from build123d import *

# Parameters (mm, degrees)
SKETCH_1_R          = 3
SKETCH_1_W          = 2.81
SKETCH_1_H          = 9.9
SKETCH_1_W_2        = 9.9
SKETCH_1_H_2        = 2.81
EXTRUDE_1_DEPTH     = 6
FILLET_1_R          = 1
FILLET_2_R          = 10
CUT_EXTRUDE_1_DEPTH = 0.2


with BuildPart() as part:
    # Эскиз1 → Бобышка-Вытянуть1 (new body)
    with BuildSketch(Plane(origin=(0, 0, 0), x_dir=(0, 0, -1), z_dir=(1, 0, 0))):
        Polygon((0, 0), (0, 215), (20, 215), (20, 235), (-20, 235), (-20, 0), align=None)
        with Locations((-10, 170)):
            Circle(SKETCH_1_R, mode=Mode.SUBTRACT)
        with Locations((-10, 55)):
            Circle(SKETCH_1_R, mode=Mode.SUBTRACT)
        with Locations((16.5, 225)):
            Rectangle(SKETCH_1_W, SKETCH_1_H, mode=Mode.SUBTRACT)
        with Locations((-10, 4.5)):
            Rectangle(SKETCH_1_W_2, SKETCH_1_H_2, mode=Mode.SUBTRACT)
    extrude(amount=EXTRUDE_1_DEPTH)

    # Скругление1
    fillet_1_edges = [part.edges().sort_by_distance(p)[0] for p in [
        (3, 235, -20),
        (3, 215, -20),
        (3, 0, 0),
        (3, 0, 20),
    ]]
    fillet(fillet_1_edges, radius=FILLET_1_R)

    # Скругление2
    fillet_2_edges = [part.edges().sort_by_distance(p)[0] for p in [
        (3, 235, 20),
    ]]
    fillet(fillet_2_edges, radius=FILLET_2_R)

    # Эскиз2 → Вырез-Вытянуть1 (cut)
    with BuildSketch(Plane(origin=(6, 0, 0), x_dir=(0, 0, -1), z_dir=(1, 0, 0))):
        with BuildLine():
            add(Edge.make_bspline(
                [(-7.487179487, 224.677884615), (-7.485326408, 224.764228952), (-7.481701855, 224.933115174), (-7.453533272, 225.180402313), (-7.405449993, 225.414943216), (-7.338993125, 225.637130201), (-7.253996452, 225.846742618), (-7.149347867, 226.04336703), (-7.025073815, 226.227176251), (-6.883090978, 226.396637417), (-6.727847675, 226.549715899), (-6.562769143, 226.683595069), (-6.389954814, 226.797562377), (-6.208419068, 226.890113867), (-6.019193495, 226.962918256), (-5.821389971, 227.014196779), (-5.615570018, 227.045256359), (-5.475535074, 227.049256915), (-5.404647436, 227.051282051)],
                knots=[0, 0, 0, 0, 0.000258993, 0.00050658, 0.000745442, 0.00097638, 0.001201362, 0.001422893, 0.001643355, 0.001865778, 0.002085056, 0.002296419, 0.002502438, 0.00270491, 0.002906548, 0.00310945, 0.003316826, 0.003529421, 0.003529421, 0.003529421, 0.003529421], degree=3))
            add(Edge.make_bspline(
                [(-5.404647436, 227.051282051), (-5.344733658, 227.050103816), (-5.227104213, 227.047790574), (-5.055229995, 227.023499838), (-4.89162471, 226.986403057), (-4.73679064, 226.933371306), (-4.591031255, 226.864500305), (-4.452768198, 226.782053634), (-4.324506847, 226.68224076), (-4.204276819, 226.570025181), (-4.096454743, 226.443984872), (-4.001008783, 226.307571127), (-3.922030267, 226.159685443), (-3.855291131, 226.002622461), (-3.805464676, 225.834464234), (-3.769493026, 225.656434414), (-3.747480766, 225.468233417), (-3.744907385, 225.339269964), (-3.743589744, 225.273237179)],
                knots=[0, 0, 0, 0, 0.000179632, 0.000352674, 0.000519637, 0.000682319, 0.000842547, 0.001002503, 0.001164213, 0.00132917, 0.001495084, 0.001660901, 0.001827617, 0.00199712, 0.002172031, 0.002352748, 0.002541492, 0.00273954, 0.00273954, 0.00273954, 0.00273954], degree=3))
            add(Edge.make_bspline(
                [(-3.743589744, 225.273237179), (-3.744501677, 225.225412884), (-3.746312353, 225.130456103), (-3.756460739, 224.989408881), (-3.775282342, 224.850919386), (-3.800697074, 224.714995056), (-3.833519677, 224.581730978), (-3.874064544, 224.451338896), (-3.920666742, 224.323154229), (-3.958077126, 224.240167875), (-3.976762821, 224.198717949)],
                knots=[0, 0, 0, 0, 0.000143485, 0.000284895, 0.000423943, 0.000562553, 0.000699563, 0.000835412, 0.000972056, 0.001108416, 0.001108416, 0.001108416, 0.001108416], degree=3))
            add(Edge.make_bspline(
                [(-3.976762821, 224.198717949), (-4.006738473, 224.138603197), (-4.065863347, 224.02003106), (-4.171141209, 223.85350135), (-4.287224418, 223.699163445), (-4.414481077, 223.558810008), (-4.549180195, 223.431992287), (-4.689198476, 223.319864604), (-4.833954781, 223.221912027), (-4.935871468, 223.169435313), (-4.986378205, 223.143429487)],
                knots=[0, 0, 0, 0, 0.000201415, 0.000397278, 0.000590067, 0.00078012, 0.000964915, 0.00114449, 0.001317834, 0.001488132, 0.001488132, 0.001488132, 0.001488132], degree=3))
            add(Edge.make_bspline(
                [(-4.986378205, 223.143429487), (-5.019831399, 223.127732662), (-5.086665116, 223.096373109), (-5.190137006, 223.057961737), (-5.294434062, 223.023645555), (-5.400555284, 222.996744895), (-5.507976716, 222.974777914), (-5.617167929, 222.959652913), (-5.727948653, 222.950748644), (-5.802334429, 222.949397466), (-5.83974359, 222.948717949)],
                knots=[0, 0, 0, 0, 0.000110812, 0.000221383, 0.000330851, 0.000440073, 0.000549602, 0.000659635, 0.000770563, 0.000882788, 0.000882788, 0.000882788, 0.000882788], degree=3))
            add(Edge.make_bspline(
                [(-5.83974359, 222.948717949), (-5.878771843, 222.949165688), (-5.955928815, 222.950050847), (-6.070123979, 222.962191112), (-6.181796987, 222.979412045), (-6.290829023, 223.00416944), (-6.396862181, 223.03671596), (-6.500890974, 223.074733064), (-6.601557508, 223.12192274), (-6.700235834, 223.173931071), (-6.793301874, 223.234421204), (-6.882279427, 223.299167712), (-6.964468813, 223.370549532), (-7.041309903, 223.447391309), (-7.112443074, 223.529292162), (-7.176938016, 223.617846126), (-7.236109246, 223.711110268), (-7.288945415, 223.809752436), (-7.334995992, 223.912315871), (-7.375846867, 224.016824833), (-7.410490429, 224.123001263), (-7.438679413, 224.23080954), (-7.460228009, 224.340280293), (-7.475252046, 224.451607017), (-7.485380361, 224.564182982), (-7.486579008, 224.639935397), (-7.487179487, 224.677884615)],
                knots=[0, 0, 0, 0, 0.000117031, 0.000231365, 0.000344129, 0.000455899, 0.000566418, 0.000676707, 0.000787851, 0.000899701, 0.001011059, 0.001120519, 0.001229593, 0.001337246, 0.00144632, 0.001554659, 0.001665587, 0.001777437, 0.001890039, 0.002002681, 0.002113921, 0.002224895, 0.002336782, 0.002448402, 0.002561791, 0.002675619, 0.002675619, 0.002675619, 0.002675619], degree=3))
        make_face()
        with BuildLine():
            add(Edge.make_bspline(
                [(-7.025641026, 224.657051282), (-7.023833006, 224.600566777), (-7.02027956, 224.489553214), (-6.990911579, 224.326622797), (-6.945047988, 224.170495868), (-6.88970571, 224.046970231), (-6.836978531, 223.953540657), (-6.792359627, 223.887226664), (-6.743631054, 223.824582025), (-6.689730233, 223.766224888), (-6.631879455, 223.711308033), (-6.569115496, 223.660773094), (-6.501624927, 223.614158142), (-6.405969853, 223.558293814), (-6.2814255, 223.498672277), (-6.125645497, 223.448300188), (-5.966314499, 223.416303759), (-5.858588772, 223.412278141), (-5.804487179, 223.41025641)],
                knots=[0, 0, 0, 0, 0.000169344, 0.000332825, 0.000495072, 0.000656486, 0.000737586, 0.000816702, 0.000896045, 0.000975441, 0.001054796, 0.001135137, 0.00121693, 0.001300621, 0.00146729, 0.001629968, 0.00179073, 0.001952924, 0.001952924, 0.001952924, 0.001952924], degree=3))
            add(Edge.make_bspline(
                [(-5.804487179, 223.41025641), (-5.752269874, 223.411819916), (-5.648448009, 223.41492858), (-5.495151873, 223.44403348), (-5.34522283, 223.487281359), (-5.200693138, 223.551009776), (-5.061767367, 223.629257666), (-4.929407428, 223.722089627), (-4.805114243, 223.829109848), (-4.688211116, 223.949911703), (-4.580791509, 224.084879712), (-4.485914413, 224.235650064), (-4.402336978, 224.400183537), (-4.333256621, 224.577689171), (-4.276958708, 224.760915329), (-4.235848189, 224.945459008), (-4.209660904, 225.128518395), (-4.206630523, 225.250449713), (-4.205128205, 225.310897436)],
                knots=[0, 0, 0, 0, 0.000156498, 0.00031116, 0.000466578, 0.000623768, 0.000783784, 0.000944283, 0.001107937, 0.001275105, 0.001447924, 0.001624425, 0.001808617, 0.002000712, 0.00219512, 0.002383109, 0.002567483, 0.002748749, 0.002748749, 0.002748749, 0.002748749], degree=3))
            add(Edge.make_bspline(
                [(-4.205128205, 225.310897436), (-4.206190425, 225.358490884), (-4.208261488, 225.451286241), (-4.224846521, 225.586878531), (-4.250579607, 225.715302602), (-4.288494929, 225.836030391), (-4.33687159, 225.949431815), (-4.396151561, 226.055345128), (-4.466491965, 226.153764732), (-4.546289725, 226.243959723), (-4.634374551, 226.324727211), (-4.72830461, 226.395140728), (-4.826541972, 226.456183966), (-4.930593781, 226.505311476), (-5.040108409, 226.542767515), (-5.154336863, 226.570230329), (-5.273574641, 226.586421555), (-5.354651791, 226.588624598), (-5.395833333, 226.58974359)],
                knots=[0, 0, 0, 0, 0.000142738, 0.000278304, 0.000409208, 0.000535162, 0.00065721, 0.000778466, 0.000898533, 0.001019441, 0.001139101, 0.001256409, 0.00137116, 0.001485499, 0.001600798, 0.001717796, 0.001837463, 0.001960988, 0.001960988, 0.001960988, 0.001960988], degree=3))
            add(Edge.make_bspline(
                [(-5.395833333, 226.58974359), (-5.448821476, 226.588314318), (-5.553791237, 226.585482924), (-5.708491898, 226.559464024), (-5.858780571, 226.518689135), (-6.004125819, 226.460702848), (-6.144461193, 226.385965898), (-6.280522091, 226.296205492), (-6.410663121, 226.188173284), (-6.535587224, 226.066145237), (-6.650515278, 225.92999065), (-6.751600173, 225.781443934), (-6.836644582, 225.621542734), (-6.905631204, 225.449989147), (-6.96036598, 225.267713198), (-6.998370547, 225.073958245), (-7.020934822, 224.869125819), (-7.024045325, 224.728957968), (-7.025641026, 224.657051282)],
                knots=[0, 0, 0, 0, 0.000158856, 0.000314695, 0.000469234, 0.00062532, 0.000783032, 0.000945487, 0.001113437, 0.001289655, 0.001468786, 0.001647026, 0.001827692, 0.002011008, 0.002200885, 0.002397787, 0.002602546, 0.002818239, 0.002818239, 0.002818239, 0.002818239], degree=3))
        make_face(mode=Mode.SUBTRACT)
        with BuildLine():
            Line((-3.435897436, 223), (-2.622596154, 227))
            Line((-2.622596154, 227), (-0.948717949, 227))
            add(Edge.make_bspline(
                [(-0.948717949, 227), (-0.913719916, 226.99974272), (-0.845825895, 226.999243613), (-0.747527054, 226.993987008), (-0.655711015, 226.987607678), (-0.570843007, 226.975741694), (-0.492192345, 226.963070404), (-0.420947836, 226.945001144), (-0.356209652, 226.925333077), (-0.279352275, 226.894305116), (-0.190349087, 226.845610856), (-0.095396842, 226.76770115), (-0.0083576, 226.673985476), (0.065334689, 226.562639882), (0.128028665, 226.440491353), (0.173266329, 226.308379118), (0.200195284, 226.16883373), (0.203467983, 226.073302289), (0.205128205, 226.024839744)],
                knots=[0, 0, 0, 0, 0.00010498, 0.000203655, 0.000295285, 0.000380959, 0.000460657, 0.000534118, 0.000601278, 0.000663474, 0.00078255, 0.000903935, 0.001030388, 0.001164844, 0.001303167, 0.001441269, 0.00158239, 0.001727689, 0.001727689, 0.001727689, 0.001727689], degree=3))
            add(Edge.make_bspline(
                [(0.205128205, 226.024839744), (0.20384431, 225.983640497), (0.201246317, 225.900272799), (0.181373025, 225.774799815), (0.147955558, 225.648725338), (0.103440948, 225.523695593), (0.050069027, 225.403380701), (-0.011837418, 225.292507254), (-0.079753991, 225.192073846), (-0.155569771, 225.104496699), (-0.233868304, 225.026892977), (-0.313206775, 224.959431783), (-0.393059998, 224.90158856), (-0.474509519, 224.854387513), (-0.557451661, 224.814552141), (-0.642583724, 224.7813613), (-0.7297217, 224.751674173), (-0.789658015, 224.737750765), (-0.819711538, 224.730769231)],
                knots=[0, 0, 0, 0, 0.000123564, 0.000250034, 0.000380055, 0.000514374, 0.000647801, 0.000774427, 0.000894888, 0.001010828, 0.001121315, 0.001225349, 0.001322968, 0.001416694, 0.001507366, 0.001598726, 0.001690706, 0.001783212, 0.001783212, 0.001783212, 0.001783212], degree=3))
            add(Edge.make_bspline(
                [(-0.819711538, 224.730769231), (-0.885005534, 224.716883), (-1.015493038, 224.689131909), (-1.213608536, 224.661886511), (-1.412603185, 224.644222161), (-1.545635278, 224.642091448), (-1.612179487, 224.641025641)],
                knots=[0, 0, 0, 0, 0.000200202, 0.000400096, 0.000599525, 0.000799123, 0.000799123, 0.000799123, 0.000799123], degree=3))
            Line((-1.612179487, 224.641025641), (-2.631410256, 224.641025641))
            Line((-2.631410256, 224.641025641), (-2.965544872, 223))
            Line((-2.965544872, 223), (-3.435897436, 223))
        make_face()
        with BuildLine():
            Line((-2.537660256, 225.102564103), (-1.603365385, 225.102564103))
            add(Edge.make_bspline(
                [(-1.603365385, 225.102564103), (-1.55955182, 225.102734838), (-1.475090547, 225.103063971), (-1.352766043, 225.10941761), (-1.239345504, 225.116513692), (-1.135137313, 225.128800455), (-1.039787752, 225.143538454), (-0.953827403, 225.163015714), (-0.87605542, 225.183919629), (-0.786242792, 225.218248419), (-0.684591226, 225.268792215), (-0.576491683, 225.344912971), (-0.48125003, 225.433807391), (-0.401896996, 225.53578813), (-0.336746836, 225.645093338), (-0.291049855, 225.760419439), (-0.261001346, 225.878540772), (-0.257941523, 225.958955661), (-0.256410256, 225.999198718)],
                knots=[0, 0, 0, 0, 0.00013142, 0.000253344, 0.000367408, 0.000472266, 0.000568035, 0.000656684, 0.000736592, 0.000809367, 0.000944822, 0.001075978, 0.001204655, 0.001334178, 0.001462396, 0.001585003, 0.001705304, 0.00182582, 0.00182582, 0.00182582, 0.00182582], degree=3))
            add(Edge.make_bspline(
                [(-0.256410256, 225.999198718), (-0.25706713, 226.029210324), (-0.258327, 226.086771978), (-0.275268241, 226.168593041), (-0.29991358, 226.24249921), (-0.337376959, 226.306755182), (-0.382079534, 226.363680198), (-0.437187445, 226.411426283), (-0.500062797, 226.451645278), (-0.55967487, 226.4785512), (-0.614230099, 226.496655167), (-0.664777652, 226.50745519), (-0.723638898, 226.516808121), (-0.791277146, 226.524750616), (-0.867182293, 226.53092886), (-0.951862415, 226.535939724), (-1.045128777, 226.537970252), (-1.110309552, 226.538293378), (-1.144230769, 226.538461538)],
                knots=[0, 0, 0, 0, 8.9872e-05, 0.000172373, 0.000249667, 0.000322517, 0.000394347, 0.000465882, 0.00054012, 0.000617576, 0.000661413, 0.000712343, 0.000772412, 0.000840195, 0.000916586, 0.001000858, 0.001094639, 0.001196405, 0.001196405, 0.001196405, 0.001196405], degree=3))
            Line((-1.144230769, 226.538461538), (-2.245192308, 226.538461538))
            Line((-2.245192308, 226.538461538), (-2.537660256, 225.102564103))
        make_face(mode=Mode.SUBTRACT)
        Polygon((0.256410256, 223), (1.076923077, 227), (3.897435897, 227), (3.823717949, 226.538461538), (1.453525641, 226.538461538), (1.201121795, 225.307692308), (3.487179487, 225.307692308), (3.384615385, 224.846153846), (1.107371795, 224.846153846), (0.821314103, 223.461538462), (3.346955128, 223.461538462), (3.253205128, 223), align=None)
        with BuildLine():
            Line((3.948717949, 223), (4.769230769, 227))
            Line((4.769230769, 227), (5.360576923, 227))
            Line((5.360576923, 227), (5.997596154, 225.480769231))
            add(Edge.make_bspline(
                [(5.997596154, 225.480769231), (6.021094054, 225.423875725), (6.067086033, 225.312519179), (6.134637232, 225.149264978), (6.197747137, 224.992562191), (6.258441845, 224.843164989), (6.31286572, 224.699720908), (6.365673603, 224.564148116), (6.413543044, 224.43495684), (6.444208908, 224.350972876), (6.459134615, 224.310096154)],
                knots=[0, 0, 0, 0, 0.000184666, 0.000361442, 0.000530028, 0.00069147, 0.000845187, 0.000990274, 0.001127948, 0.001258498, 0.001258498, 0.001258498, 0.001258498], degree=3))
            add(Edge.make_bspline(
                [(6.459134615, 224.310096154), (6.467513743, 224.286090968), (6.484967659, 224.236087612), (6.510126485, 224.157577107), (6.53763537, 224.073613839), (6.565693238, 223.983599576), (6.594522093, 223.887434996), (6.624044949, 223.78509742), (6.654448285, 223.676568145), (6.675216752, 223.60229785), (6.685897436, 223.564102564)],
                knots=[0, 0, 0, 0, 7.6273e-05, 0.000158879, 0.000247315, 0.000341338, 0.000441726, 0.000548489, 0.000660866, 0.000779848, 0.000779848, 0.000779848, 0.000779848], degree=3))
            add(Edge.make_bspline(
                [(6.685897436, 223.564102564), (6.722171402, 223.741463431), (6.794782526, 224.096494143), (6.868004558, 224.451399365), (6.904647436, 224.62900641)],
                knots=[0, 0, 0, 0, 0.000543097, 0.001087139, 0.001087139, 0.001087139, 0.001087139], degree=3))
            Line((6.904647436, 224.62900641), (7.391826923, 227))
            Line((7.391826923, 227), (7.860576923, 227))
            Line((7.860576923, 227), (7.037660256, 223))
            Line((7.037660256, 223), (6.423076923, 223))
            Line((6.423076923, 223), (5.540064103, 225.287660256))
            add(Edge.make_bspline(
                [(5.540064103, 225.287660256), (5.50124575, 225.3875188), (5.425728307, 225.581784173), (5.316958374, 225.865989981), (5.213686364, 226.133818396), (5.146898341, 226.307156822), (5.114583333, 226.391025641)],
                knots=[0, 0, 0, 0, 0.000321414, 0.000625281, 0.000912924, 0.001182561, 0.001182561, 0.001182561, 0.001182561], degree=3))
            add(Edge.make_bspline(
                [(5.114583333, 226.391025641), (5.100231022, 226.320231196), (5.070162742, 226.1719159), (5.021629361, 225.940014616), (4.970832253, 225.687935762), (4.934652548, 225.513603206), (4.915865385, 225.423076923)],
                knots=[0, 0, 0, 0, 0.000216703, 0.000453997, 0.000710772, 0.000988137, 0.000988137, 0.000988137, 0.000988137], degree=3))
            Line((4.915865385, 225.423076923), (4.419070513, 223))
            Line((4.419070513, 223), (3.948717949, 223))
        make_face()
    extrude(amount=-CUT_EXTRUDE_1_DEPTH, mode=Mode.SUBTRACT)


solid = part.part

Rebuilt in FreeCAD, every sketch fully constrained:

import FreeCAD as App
import Part
import Sketcher
from FreeCAD import Vector
Q = App.Units.Quantity


def edges_at(feature, points):
    """Names of the edges that pass closest to the given points."""
    edges = feature.Shape.Edges
    near = lambda p: min(range(len(edges)), key=lambda i: edges[i].distToShape(Part.Vertex(*p))[0])
    return sorted({f"Edge{near(p) + 1}" for p in points})

doc = App.newDocument("Part")
body = doc.addObject("PartDesign::Body", "Body")

# Sketch on YZ plane
sketch1 = body.newObject("Sketcher::SketchObject", "Sketch")
sketch1.AttachmentSupport = (doc.getObject("YZ_Plane"), [""])
sketch1.MapMode = "FlatFace"
sketch1.addGeometry([
    Part.LineSegment(Vector(0, 0, 0), Vector(215, 0, 0)),  # 0
    Part.LineSegment(Vector(215, 0, 0), Vector(215, -20, 0)),  # 1
    Part.LineSegment(Vector(215, -20, 0), Vector(235, -20, 0)),  # 2
    Part.LineSegment(Vector(235, -20, 0), Vector(235, 20, 0)),  # 3
    Part.LineSegment(Vector(235, 20, 0), Vector(0, 20, 0)),  # 4
    Part.LineSegment(Vector(0, 20, 0), Vector(0, 0, 0)),  # 5
    Part.LineSegment(Vector(3.1, 5, 0), Vector(3.1, 14.9, 0)),  # 6
    Part.LineSegment(Vector(3.1, 14.9, 0), Vector(5.9, 14.9, 0)),  # 7
    Part.LineSegment(Vector(5.9, 14.9, 0), Vector(5.9, 5, 0)),  # 8
    Part.LineSegment(Vector(5.9, 5, 0), Vector(3.1, 5, 0)),  # 9
    Part.Circle(Vector(55, 10, 0), Vector(0, 0, 1), 3),  # 10
    Part.Circle(Vector(170, 10, 0), Vector(0, 0, 1), 3),  # 11
    Part.LineSegment(Vector(220.1, -17.9, 0), Vector(220.1, -15.1, 0)),  # 12
    Part.LineSegment(Vector(220.1, -15.1, 0), Vector(229.9, -15.1, 0)),  # 13
    Part.LineSegment(Vector(229.9, -15.1, 0), Vector(229.9, -17.9, 0)),  # 14
    Part.LineSegment(Vector(229.9, -17.9, 0), Vector(220.1, -17.9, 0)),  # 15
], False)
sketch1.addConstraint([
    Sketcher.Constraint("Coincident", 0, 2, 1, 1),
    Sketcher.Constraint("Coincident", 1, 2, 2, 1),
    Sketcher.Constraint("Coincident", 2, 2, 3, 1),
    Sketcher.Constraint("Coincident", 3, 2, 4, 1),
    Sketcher.Constraint("Coincident", 4, 2, 5, 1),
    Sketcher.Constraint("Coincident", 5, 2, 0, 1),
    Sketcher.Constraint("Coincident", 6, 2, 7, 1),
    Sketcher.Constraint("Coincident", 7, 2, 8, 1),
    Sketcher.Constraint("Coincident", 8, 2, 9, 1),
    Sketcher.Constraint("Coincident", 9, 2, 6, 1),
    Sketcher.Constraint("Coincident", 12, 2, 13, 1),
    Sketcher.Constraint("Coincident", 13, 2, 14, 1),
    Sketcher.Constraint("Coincident", 14, 2, 15, 1),
    Sketcher.Constraint("Coincident", 15, 2, 12, 1),
    Sketcher.Constraint("Horizontal", 0),
    Sketcher.Constraint("Vertical", 1),
    Sketcher.Constraint("Horizontal", 2),
    Sketcher.Constraint("Vertical", 3),
    Sketcher.Constraint("Horizontal", 4),
    Sketcher.Constraint("Vertical", 5),
    Sketcher.Constraint("Vertical", 6),
    Sketcher.Constraint("Horizontal", 7),
    Sketcher.Constraint("Vertical", 8),
    Sketcher.Constraint("Horizontal", 9),
    Sketcher.Constraint("Vertical", 12),
    Sketcher.Constraint("Horizontal", 13),
    Sketcher.Constraint("Vertical", 14),
    Sketcher.Constraint("Horizontal", 15),
    Sketcher.Constraint("Coincident", 5, 2, -1, 1),
    Sketcher.Constraint("Equal", 10, 11),
    Sketcher.Constraint("Horizontal", 10, 3, 11, 3),
    Sketcher.Constraint("Equal", 2, 1),
    Sketcher.Constraint("Equal", 1, 5),
    Sketcher.Constraint("Equal", 15, 6),
    Sketcher.Constraint("Equal", 9, 12),
    Sketcher.Constraint("Diameter", 10, Q("6 mm")),
    Sketcher.Constraint("DistanceX", 0, 1, 0, 2, Q("215 mm")),
    Sketcher.Constraint("DistanceX", 2, 1, 2, 2, Q("20 mm")),
    Sketcher.Constraint("DistanceX", 13, 1, 13, 2, Q("9.9 mm")),
    Sketcher.Constraint("DistanceX", -1, 1, 10, 3, Q("55 mm")),
    Sketcher.Constraint("DistanceY", -1, 1, 10, 3, Q("10 mm")),
    Sketcher.Constraint("DistanceX", -1, 1, 11, 3, Q("170 mm")),
    Sketcher.Constraint("DistanceX", 7, 1, 7, 2, Q("2.81 mm")),
    Sketcher.Constraint("DistanceY", -1, 1, 6, 2, Q("14.95 mm")),
    Sketcher.Constraint("DistanceX", -1, 1, 12, 2, Q("220.05 mm")),
    Sketcher.Constraint("DistanceX", -1, 1, 6, 2, Q("3.095 mm")),
    Sketcher.Constraint("DistanceY", 12, 2, -1, 1, Q("15.095 mm")),
])
pad1 = body.newObject("PartDesign::Pad", "Pad")
pad1.Profile = sketch1
pad1.Length = 6
doc.recompute()

fillet = body.newObject("PartDesign::Fillet", "Fillet")
fillet.Base = (pad1, edges_at(pad1, [
    (3, 235, -20),
    (3, 215, -20),
    (3, 0, 0),
    (3, 0, 20),
]))
fillet.Radius = 1
doc.recompute()

fillet2 = body.newObject("PartDesign::Fillet", "Fillet001")
fillet2.Base = (fillet, edges_at(fillet, [(3, 235, 20)]))
fillet2.Radius = 10

# Sketch on YZ plane
sketch2 = body.newObject("Sketcher::SketchObject", "Sketch001")
sketch2.AttachmentSupport = (doc.getObject("YZ_Plane"), [""])
sketch2.MapMode = "FlatFace"
sketch2.AttachmentOffset = App.Placement(Vector(0, 0, 6), App.Rotation())
sketch2.addGeometry([
    Part.BSplineCurve([Vector(224.677885, 7.487179, 0), Vector(224.764229, 7.485326, 0), Vector(224.933115, 7.481702, 0), Vector(225.180402, 7.453533, 0), Vector(225.414943, 7.40545, 0), Vector(225.63713, 7.338993, 0), Vector(225.846743, 7.253996, 0), Vector(226.043367, 7.149348, 0), Vector(226.227176, 7.025074, 0), Vector(226.396637, 6.883091, 0), Vector(226.549716, 6.727848, 0), Vector(226.683595, 6.562769, 0), Vector(226.797562, 6.389955, 0), Vector(226.890114, 6.208419, 0), Vector(226.962918, 6.019193, 0), Vector(227.014197, 5.82139, 0), Vector(227.045256, 5.61557, 0), Vector(227.049257, 5.475535, 0), Vector(227.051282, 5.404647, 0)], [4, 1, 1, 1, 1, 1, 1, 1, 1, 1, 1, 1, 1, 1, 1, 1, 4], [0, 0.000258993, 0.00050658, 0.000745442, 0.00097638, 0.001201362, 0.001422893, 0.001643355, 0.001865778, 0.002085056, 0.002296419, 0.002502438, 0.00270491, 0.002906548, 0.00310945, 0.003316826, 0.003529421], False, 3, [1, 1, 1, 1, 1, 1, 1, 1, 1, 1, 1, 1, 1, 1, 1, 1, 1, 1, 1], False),  # 0
    Part.BSplineCurve([Vector(222.948718, 5.839744, 0), Vector(222.949166, 5.878772, 0), Vector(222.950051, 5.955929, 0), Vector(222.962191, 6.070124, 0), Vector(222.979412, 6.181797, 0), Vector(223.004169, 6.290829, 0), Vector(223.036716, 6.396862, 0), Vector(223.074733, 6.500891, 0), Vector(223.121923, 6.601558, 0), Vector(223.173931, 6.700236, 0), Vector(223.234421, 6.793302, 0), Vector(223.299168, 6.882279, 0), Vector(223.37055, 6.964469, 0), Vector(223.447391, 7.04131, 0), Vector(223.529292, 7.112443, 0), Vector(223.617846, 7.176938, 0), Vector(223.71111, 7.236109, 0), Vector(223.809752, 7.288945, 0), Vector(223.912316, 7.334996, 0), Vector(224.016825, 7.375847, 0), Vector(224.123001, 7.41049, 0), Vector(224.23081, 7.438679, 0), Vector(224.34028, 7.460228, 0), Vector(224.451607, 7.475252, 0), Vector(224.564183, 7.48538, 0), Vector(224.639935, 7.486579, 0), Vector(224.677885, 7.487179, 0)], [4, 1, 1, 1, 1, 1, 1, 1, 1, 1, 1, 1, 1, 1, 1, 1, 1, 1, 1, 1, 1, 1, 1, 1, 4], [0, 0.000117031, 0.000231365, 0.000344129, 0.000455899, 0.000566418, 0.000676707, 0.000787851, 0.000899701, 0.001011059, 0.001120519, 0.001229593, 0.001337246, 0.00144632, 0.001554659, 0.001665587, 0.001777437, 0.001890039, 0.002002681, 0.002113921, 0.002224895, 0.002336782, 0.002448402, 0.002561791, 0.002675619], False, 3, [1, 1, 1, 1, 1, 1, 1, 1, 1, 1, 1, 1, 1, 1, 1, 1, 1, 1, 1, 1, 1, 1, 1, 1, 1, 1, 1], False),  # 1
    Part.BSplineCurve([Vector(223.143429, 4.986378, 0), Vector(223.127733, 5.019831, 0), Vector(223.096373, 5.086665, 0), Vector(223.057962, 5.190137, 0), Vector(223.023646, 5.294434, 0), Vector(222.996745, 5.400555, 0), Vector(222.974778, 5.507977, 0), Vector(222.959653, 5.617168, 0), Vector(222.950749, 5.727949, 0), Vector(222.949397, 5.802334, 0), Vector(222.948718, 5.839744, 0)], [4, 1, 1, 1, 1, 1, 1, 1, 4], [0, 0.000110812, 0.000221383, 0.000330851, 0.000440073, 0.000549602, 0.000659635, 0.000770563, 0.000882788], False, 3, [1, 1, 1, 1, 1, 1, 1, 1, 1, 1, 1], False),  # 2
    Part.BSplineCurve([Vector(224.198718, 3.976763, 0), Vector(224.138603, 4.006738, 0), Vector(224.020031, 4.065863, 0), Vector(223.853501, 4.171141, 0), Vector(223.699163, 4.287224, 0), Vector(223.55881, 4.414481, 0), Vector(223.431992, 4.54918, 0), Vector(223.319865, 4.689198, 0), Vector(223.221912, 4.833955, 0), Vector(223.169435, 4.935871, 0), Vector(223.143429, 4.986378, 0)], [4, 1, 1, 1, 1, 1, 1, 1, 4], [0, 0.000201415, 0.000397278, 0.000590067, 0.00078012, 0.000964915, 0.00114449, 0.001317834, 0.001488132], False, 3, [1, 1, 1, 1, 1, 1, 1, 1, 1, 1, 1], False),  # 3
    Part.BSplineCurve([Vector(225.273237, 3.74359, 0), Vector(225.225413, 3.744502, 0), Vector(225.130456, 3.746312, 0), Vector(224.989409, 3.756461, 0), Vector(224.850919, 3.775282, 0), Vector(224.714995, 3.800697, 0), Vector(224.581731, 3.83352, 0), Vector(224.451339, 3.874065, 0), Vector(224.323154, 3.920667, 0), Vector(224.240168, 3.958077, 0), Vector(224.198718, 3.976763, 0)], [4, 1, 1, 1, 1, 1, 1, 1, 4], [0, 0.000143485, 0.000284895, 0.000423943, 0.000562553, 0.000699563, 0.000835412, 0.000972056, 0.001108416], False, 3, [1, 1, 1, 1, 1, 1, 1, 1, 1, 1, 1], False),  # 4
    Part.BSplineCurve([Vector(227.051282, 5.404647, 0), Vector(227.050104, 5.344734, 0), Vector(227.047791, 5.227104, 0), Vector(227.0235, 5.05523, 0), Vector(226.986403, 4.891625, 0), Vector(226.933371, 4.736791, 0), Vector(226.8645, 4.591031, 0), Vector(226.782054, 4.452768, 0), Vector(226.682241, 4.324507, 0), Vector(226.570025, 4.204277, 0), Vector(226.443985, 4.096455, 0), Vector(226.307571, 4.001009, 0), Vector(226.159685, 3.92203, 0), Vector(226.002622, 3.855291, 0), Vector(225.834464, 3.805465, 0), Vector(225.656434, 3.769493, 0), Vector(225.468233, 3.747481, 0), Vector(225.33927, 3.744907, 0), Vector(225.273237, 3.74359, 0)], [4, 1, 1, 1, 1, 1, 1, 1, 1, 1, 1, 1, 1, 1, 1, 1, 4], [0, 0.000179632, 0.000352674, 0.000519637, 0.000682319, 0.000842547, 0.001002503, 0.001164213, 0.00132917, 0.001495084, 0.001660901, 0.001827617, 0.00199712, 0.002172031, 0.002352748, 0.002541492, 0.00273954], False, 3, [1, 1, 1, 1, 1, 1, 1, 1, 1, 1, 1, 1, 1, 1, 1, 1, 1, 1, 1], False),  # 5
    Part.BSplineCurve([Vector(226.589744, 5.395833, 0), Vector(226.588314, 5.448821, 0), Vector(226.585483, 5.553791, 0), Vector(226.559464, 5.708492, 0), Vector(226.518689, 5.858781, 0), Vector(226.460703, 6.004126, 0), Vector(226.385966, 6.144461, 0), Vector(226.296205, 6.280522, 0), Vector(226.188173, 6.410663, 0), Vector(226.066145, 6.535587, 0), Vector(225.929991, 6.650515, 0), Vector(225.781444, 6.7516, 0), Vector(225.621543, 6.836645, 0), Vector(225.449989, 6.905631, 0), Vector(225.267713, 6.960366, 0), Vector(225.073958, 6.998371, 0), Vector(224.869126, 7.020935, 0), Vector(224.728958, 7.024045, 0), Vector(224.657051, 7.025641, 0)], [4, 1, 1, 1, 1, 1, 1, 1, 1, 1, 1, 1, 1, 1, 1, 1, 4], [0, 0.000158856, 0.000314695, 0.000469234, 0.00062532, 0.000783032, 0.000945487, 0.001113437, 0.001289655, 0.001468786, 0.001647026, 0.001827692, 0.002011008, 0.002200885, 0.002397787, 0.002602546, 0.002818239], False, 3, [1, 1, 1, 1, 1, 1, 1, 1, 1, 1, 1, 1, 1, 1, 1, 1, 1, 1, 1], False),  # 6
    Part.BSplineCurve([Vector(225.310897, 4.205128, 0), Vector(225.358491, 4.20619, 0), Vector(225.451286, 4.208261, 0), Vector(225.586879, 4.224847, 0), Vector(225.715303, 4.25058, 0), Vector(225.83603, 4.288495, 0), Vector(225.949432, 4.336872, 0), Vector(226.055345, 4.396152, 0), Vector(226.153765, 4.466492, 0), Vector(226.24396, 4.54629, 0), Vector(226.324727, 4.634375, 0), Vector(226.395141, 4.728305, 0), Vector(226.456184, 4.826542, 0), Vector(226.505311, 4.930594, 0), Vector(226.542768, 5.040108, 0), Vector(226.57023, 5.154337, 0), Vector(226.586422, 5.273575, 0), Vector(226.588625, 5.354652, 0), Vector(226.589744, 5.395833, 0)], [4, 1, 1, 1, 1, 1, 1, 1, 1, 1, 1, 1, 1, 1, 1, 1, 4], [0, 0.000142738, 0.000278304, 0.000409208, 0.000535162, 0.00065721, 0.000778466, 0.000898533, 0.001019441, 0.001139101, 0.001256409, 0.00137116, 0.001485499, 0.001600798, 0.001717796, 0.001837463, 0.001960988], False, 3, [1, 1, 1, 1, 1, 1, 1, 1, 1, 1, 1, 1, 1, 1, 1, 1, 1, 1, 1], False),  # 7
    Part.BSplineCurve([Vector(223.410256, 5.804487, 0), Vector(223.41182, 5.75227, 0), Vector(223.414929, 5.648448, 0), Vector(223.444033, 5.495152, 0), Vector(223.487281, 5.345223, 0), Vector(223.55101, 5.200693, 0), Vector(223.629258, 5.061767, 0), Vector(223.72209, 4.929407, 0), Vector(223.82911, 4.805114, 0), Vector(223.949912, 4.688211, 0), Vector(224.08488, 4.580792, 0), Vector(224.23565, 4.485914, 0), Vector(224.400184, 4.402337, 0), Vector(224.577689, 4.333257, 0), Vector(224.760915, 4.276959, 0), Vector(224.945459, 4.235848, 0), Vector(225.128518, 4.209661, 0), Vector(225.25045, 4.206631, 0), Vector(225.310897, 4.205128, 0)], [4, 1, 1, 1, 1, 1, 1, 1, 1, 1, 1, 1, 1, 1, 1, 1, 4], [0, 0.000156498, 0.00031116, 0.000466578, 0.000623768, 0.000783784, 0.000944283, 0.001107937, 0.001275105, 0.001447924, 0.001624425, 0.001808617, 0.002000712, 0.00219512, 0.002383109, 0.002567483, 0.002748749], False, 3, [1, 1, 1, 1, 1, 1, 1, 1, 1, 1, 1, 1, 1, 1, 1, 1, 1, 1, 1], False),  # 8
    Part.BSplineCurve([Vector(224.657051, 7.025641, 0), Vector(224.600567, 7.023833, 0), Vector(224.489553, 7.02028, 0), Vector(224.326623, 6.990912, 0), Vector(224.170496, 6.945048, 0), Vector(224.04697, 6.889706, 0), Vector(223.953541, 6.836979, 0), Vector(223.887227, 6.79236, 0), Vector(223.824582, 6.743631, 0), Vector(223.766225, 6.68973, 0), Vector(223.711308, 6.631879, 0), Vector(223.660773, 6.569115, 0), Vector(223.614158, 6.501625, 0), Vector(223.558294, 6.40597, 0), Vector(223.498672, 6.281426, 0), Vector(223.4483, 6.125645, 0), Vector(223.416304, 5.966314, 0), Vector(223.412278, 5.858589, 0), Vector(223.410256, 5.804487, 0)], [4, 1, 1, 1, 1, 1, 1, 1, 1, 1, 1, 1, 1, 1, 1, 1, 4], [0, 0.000169344, 0.000332825, 0.000495072, 0.000656486, 0.000737586, 0.000816702, 0.000896045, 0.000975441, 0.001054796, 0.001135137, 0.00121693, 0.001300621, 0.00146729, 0.001629968, 0.00179073, 0.001952924], False, 3, [1, 1, 1, 1, 1, 1, 1, 1, 1, 1, 1, 1, 1, 1, 1, 1, 1, 1, 1], False),  # 9
    Part.LineSegment(Vector(227, 2.622596, 0), Vector(223, 3.435897, 0)),  # 10
    Part.LineSegment(Vector(223, 3.435897, 0), Vector(223, 2.965545, 0)),  # 11
    Part.LineSegment(Vector(223, 2.965545, 0), Vector(224.641026, 2.63141, 0)),  # 12
    Part.LineSegment(Vector(224.641026, 2.63141, 0), Vector(224.641026, 1.612179, 0)),  # 13
    Part.BSplineCurve([Vector(224.730769, 0.819712, 0), Vector(224.716883, 0.885006, 0), Vector(224.689132, 1.015493, 0), Vector(224.661887, 1.213609, 0), Vector(224.644222, 1.412603, 0), Vector(224.642091, 1.545635, 0), Vector(224.641026, 1.612179, 0)], [4, 1, 1, 1, 4], [0, 0.000200202, 0.000400096, 0.000599525, 0.000799123], False, 3, [1, 1, 1, 1, 1, 1, 1], False),  # 14
    Part.BSplineCurve([Vector(226.02484, -0.205128, 0), Vector(225.98364, -0.203844, 0), Vector(225.900273, -0.201246, 0), Vector(225.7748, -0.181373, 0), Vector(225.648725, -0.147956, 0), Vector(225.523696, -0.103441, 0), Vector(225.403381, -0.050069, 0), Vector(225.292507, 0.011837, 0), Vector(225.192074, 0.079754, 0), Vector(225.104497, 0.15557, 0), Vector(225.026893, 0.233868, 0), Vector(224.959432, 0.313207, 0), Vector(224.901589, 0.39306, 0), Vector(224.854388, 0.47451, 0), Vector(224.814552, 0.557452, 0), Vector(224.781361, 0.642584, 0), Vector(224.751674, 0.729722, 0), Vector(224.737751, 0.789658, 0), Vector(224.730769, 0.819712, 0)], [4, 1, 1, 1, 1, 1, 1, 1, 1, 1, 1, 1, 1, 1, 1, 1, 4], [0, 0.000123564, 0.000250034, 0.000380055, 0.000514374, 0.000647801, 0.000774427, 0.000894888, 0.001010828, 0.001121315, 0.001225349, 0.001322968, 0.001416694, 0.001507366, 0.001598726, 0.001690706, 0.001783212], False, 3, [1, 1, 1, 1, 1, 1, 1, 1, 1, 1, 1, 1, 1, 1, 1, 1, 1, 1, 1], False),  # 15
    Part.BSplineCurve([Vector(227, 0.948718, 0), Vector(226.999743, 0.91372, 0), Vector(226.999244, 0.845826, 0), Vector(226.993987, 0.747527, 0), Vector(226.987608, 0.655711, 0), Vector(226.975742, 0.570843, 0), Vector(226.96307, 0.492192, 0), Vector(226.945001, 0.420948, 0), Vector(226.925333, 0.35621, 0), Vector(226.894305, 0.279352, 0), Vector(226.845611, 0.190349, 0), Vector(226.767701, 0.095397, 0), Vector(226.673985, 0.008358, 0), Vector(226.56264, -0.065335, 0), Vector(226.440491, -0.128029, 0), Vector(226.308379, -0.173266, 0), Vector(226.168834, -0.200195, 0), Vector(226.073302, -0.203468, 0), Vector(226.02484, -0.205128, 0)], [4, 1, 1, 1, 1, 1, 1, 1, 1, 1, 1, 1, 1, 1, 1, 1, 4], [0, 0.00010498, 0.000203655, 0.000295285, 0.000380959, 0.000460657, 0.000534118, 0.000601278, 0.000663474, 0.00078255, 0.000903935, 0.001030388, 0.001164844, 0.001303167, 0.001441269, 0.00158239, 0.001727689], False, 3, [1, 1, 1, 1, 1, 1, 1, 1, 1, 1, 1, 1, 1, 1, 1, 1, 1, 1, 1], False),  # 16
    Part.LineSegment(Vector(227, 0.948718, 0), Vector(227, 2.622596, 0)),  # 17
    Part.LineSegment(Vector(225.102564, 2.53766, 0), Vector(226.538462, 2.245192, 0)),  # 18
    Part.LineSegment(Vector(226.538462, 2.245192, 0), Vector(226.538462, 1.144231, 0)),  # 19
    Part.BSplineCurve([Vector(225.999199, 0.25641, 0), Vector(226.02921, 0.257067, 0), Vector(226.086772, 0.258327, 0), Vector(226.168593, 0.275268, 0), Vector(226.242499, 0.299914, 0), Vector(226.306755, 0.337377, 0), Vector(226.36368, 0.38208, 0), Vector(226.411426, 0.437187, 0), Vector(226.451645, 0.500063, 0), Vector(226.478551, 0.559675, 0), Vector(226.496655, 0.61423, 0), Vector(226.507455, 0.664778, 0), Vector(226.516808, 0.723639, 0), Vector(226.524751, 0.791277, 0), Vector(226.530929, 0.867182, 0), Vector(226.53594, 0.951862, 0), Vector(226.53797, 1.045129, 0), Vector(226.538293, 1.11031, 0), Vector(226.538462, 1.144231, 0)], [4, 1, 1, 1, 1, 1, 1, 1, 1, 1, 1, 1, 1, 1, 1, 1, 4], [0, 0.000089872, 0.000172373, 0.000249667, 0.000322517, 0.000394347, 0.000465882, 0.00054012, 0.000617576, 0.000661413, 0.000712343, 0.000772412, 0.000840195, 0.000916586, 0.001000858, 0.001094639, 0.001196405], False, 3, [1, 1, 1, 1, 1, 1, 1, 1, 1, 1, 1, 1, 1, 1, 1, 1, 1, 1, 1], False),  # 20
    Part.BSplineCurve([Vector(225.102564, 1.603365, 0), Vector(225.102735, 1.559552, 0), Vector(225.103064, 1.475091, 0), Vector(225.109418, 1.352766, 0), Vector(225.116514, 1.239346, 0), Vector(225.1288, 1.135137, 0), Vector(225.143538, 1.039788, 0), Vector(225.163016, 0.953827, 0), Vector(225.18392, 0.876055, 0), Vector(225.218248, 0.786243, 0), Vector(225.268792, 0.684591, 0), Vector(225.344913, 0.576492, 0), Vector(225.433807, 0.48125, 0), Vector(225.535788, 0.401897, 0), Vector(225.645093, 0.336747, 0), Vector(225.760419, 0.29105, 0), Vector(225.878541, 0.261001, 0), Vector(225.958956, 0.257942, 0), Vector(225.999199, 0.25641, 0)], [4, 1, 1, 1, 1, 1, 1, 1, 1, 1, 1, 1, 1, 1, 1, 1, 4], [0, 0.00013142, 0.000253344, 0.000367408, 0.000472266, 0.000568035, 0.000656684, 0.000736592, 0.000809367, 0.000944822, 0.001075978, 0.001204655, 0.001334178, 0.001462396, 0.001585003, 0.001705304, 0.00182582], False, 3, [1, 1, 1, 1, 1, 1, 1, 1, 1, 1, 1, 1, 1, 1, 1, 1, 1, 1, 1], False),  # 21
    Part.LineSegment(Vector(225.102564, 1.603365, 0), Vector(225.102564, 2.53766, 0)),  # 22
    Part.LineSegment(Vector(227, -1.076923, 0), Vector(223, -0.25641, 0)),  # 23
    Part.LineSegment(Vector(223, -0.25641, 0), Vector(223, -3.253205, 0)),  # 24
    Part.LineSegment(Vector(223, -3.253205, 0), Vector(223.461538, -3.346955, 0)),  # 25
    Part.LineSegment(Vector(223.461538, -3.346955, 0), Vector(223.461538, -0.821314, 0)),  # 26
    Part.LineSegment(Vector(223.461538, -0.821314, 0), Vector(224.846154, -1.107372, 0)),  # 27
    Part.LineSegment(Vector(224.846154, -1.107372, 0), Vector(224.846154, -3.384615, 0)),  # 28
    Part.LineSegment(Vector(224.846154, -3.384615, 0), Vector(225.307692, -3.487179, 0)),  # 29
    Part.LineSegment(Vector(225.307692, -3.487179, 0), Vector(225.307692, -1.201122, 0)),  # 30
    Part.LineSegment(Vector(225.307692, -1.201122, 0), Vector(226.538462, -1.453526, 0)),  # 31
    Part.LineSegment(Vector(226.538462, -1.453526, 0), Vector(226.538462, -3.823718, 0)),  # 32
    Part.LineSegment(Vector(226.538462, -3.823718, 0), Vector(227, -3.897436, 0)),  # 33
    Part.LineSegment(Vector(227, -3.897436, 0), Vector(227, -1.076923, 0)),  # 34
    Part.LineSegment(Vector(227, -4.769231, 0), Vector(223, -3.948718, 0)),  # 35
    Part.LineSegment(Vector(223, -3.948718, 0), Vector(223, -4.419071, 0)),  # 36
    Part.LineSegment(Vector(223, -4.419071, 0), Vector(225.423077, -4.915865, 0)),  # 37
    Part.BSplineCurve([Vector(226.391026, -5.114583, 0), Vector(226.320231, -5.100231, 0), Vector(226.171916, -5.070163, 0), Vector(225.940015, -5.021629, 0), Vector(225.687936, -4.970832, 0), Vector(225.513603, -4.934653, 0), Vector(225.423077, -4.915865, 0)], [4, 1, 1, 1, 4], [0, 0.000216703, 0.000453997, 0.000710772, 0.000988137], False, 3, [1, 1, 1, 1, 1, 1, 1], False),  # 38
    Part.BSplineCurve([Vector(225.28766, -5.540064, 0), Vector(225.387519, -5.501246, 0), Vector(225.581784, -5.425728, 0), Vector(225.86599, -5.316958, 0), Vector(226.133818, -5.213686, 0), Vector(226.307157, -5.146898, 0), Vector(226.391026, -5.114583, 0)], [4, 1, 1, 1, 4], [0, 0.000321414, 0.000625281, 0.000912924, 0.001182561], False, 3, [1, 1, 1, 1, 1, 1, 1], False),  # 39
    Part.LineSegment(Vector(225.28766, -5.540064, 0), Vector(223, -6.423077, 0)),  # 40
    Part.LineSegment(Vector(223, -6.423077, 0), Vector(223, -7.03766, 0)),  # 41
    Part.LineSegment(Vector(223, -7.03766, 0), Vector(227, -7.860577, 0)),  # 42
    Part.LineSegment(Vector(227, -7.860577, 0), Vector(227, -7.391827, 0)),  # 43
    Part.LineSegment(Vector(227, -7.391827, 0), Vector(224.629006, -6.904647, 0)),  # 44
    Part.BSplineCurve([Vector(223.564103, -6.685897, 0), Vector(223.741463, -6.722171, 0), Vector(224.096494, -6.794783, 0), Vector(224.451399, -6.868005, 0), Vector(224.629006, -6.904647, 0)], [4, 1, 4], [0, 0.000543097, 0.001087139], False, 3, [1, 1, 1, 1, 1], False),  # 45
    Part.BSplineCurve([Vector(224.310096, -6.459135, 0), Vector(224.286091, -6.467514, 0), Vector(224.236088, -6.484968, 0), Vector(224.157577, -6.510126, 0), Vector(224.073614, -6.537635, 0), Vector(223.9836, -6.565693, 0), Vector(223.887435, -6.594522, 0), Vector(223.785097, -6.624045, 0), Vector(223.676568, -6.654448, 0), Vector(223.602298, -6.675217, 0), Vector(223.564103, -6.685897, 0)], [4, 1, 1, 1, 1, 1, 1, 1, 4], [0, 0.000076273, 0.000158879, 0.000247315, 0.000341338, 0.000441726, 0.000548489, 0.000660866, 0.000779848], False, 3, [1, 1, 1, 1, 1, 1, 1, 1, 1, 1, 1], False),  # 46
    Part.BSplineCurve([Vector(225.480769, -5.997596, 0), Vector(225.423876, -6.021094, 0), Vector(225.312519, -6.067086, 0), Vector(225.149265, -6.134637, 0), Vector(224.992562, -6.197747, 0), Vector(224.843165, -6.258442, 0), Vector(224.699721, -6.312866, 0), Vector(224.564148, -6.365674, 0), Vector(224.434957, -6.413543, 0), Vector(224.350973, -6.444209, 0), Vector(224.310096, -6.459135, 0)], [4, 1, 1, 1, 1, 1, 1, 1, 4], [0, 0.000184666, 0.000361442, 0.000530028, 0.00069147, 0.000845187, 0.000990274, 0.001127948, 0.001258498], False, 3, [1, 1, 1, 1, 1, 1, 1, 1, 1, 1, 1], False),  # 47
    Part.LineSegment(Vector(225.480769, -5.997596, 0), Vector(227, -5.360577, 0)),  # 48
    Part.LineSegment(Vector(227, -5.360577, 0), Vector(227, -4.769231, 0)),  # 49
], False)
sketch2.addConstraint([
    Sketcher.Constraint("Block", 0),
    Sketcher.Constraint("Block", 1),
    Sketcher.Constraint("Block", 2),
    Sketcher.Constraint("Block", 3),
    Sketcher.Constraint("Block", 4),
    Sketcher.Constraint("Block", 5),
    Sketcher.Constraint("Block", 6),
    Sketcher.Constraint("Block", 7),
    Sketcher.Constraint("Block", 8),
    Sketcher.Constraint("Block", 9),
    Sketcher.Constraint("Block", 14),
    Sketcher.Constraint("Block", 15),
    Sketcher.Constraint("Block", 16),
    Sketcher.Constraint("Block", 20),
    Sketcher.Constraint("Block", 21),
    Sketcher.Constraint("Block", 38),
    Sketcher.Constraint("Block", 39),
    Sketcher.Constraint("Block", 45),
    Sketcher.Constraint("Block", 46),
    Sketcher.Constraint("Block", 47),
    Sketcher.Constraint("Coincident", 10, 2, 11, 1),
    Sketcher.Constraint("Coincident", 11, 2, 12, 1),
    Sketcher.Constraint("Coincident", 12, 2, 13, 1),
    Sketcher.Constraint("Coincident", 13, 2, 14, 2),
    Sketcher.Constraint("Coincident", 16, 1, 17, 1),
    Sketcher.Constraint("Coincident", 17, 2, 10, 1),
    Sketcher.Constraint("Coincident", 18, 2, 19, 1),
    Sketcher.Constraint("Coincident", 19, 2, 20, 2),
    Sketcher.Constraint("Coincident", 21, 1, 22, 1),
    Sketcher.Constraint("Coincident", 22, 2, 18, 1),
    Sketcher.Constraint("Coincident", 23, 2, 24, 1),
    Sketcher.Constraint("Coincident", 24, 2, 25, 1),
    Sketcher.Constraint("Coincident", 25, 2, 26, 1),
    Sketcher.Constraint("Coincident", 26, 2, 27, 1),
    Sketcher.Constraint("Coincident", 27, 2, 28, 1),
    Sketcher.Constraint("Coincident", 28, 2, 29, 1),
    Sketcher.Constraint("Coincident", 29, 2, 30, 1),
    Sketcher.Constraint("Coincident", 30, 2, 31, 1),
    Sketcher.Constraint("Coincident", 31, 2, 32, 1),
    Sketcher.Constraint("Coincident", 32, 2, 33, 1),
    Sketcher.Constraint("Coincident", 33, 2, 34, 1),
    Sketcher.Constraint("Coincident", 34, 2, 23, 1),
    Sketcher.Constraint("Coincident", 35, 2, 36, 1),
    Sketcher.Constraint("Coincident", 36, 2, 37, 1),
    Sketcher.Constraint("Coincident", 37, 2, 38, 2),
    Sketcher.Constraint("Coincident", 39, 1, 40, 1),
    Sketcher.Constraint("Coincident", 40, 2, 41, 1),
    Sketcher.Constraint("Coincident", 41, 2, 42, 1),
    Sketcher.Constraint("Coincident", 42, 2, 43, 1),
    Sketcher.Constraint("Coincident", 43, 2, 44, 1),
    Sketcher.Constraint("Coincident", 44, 2, 45, 2),
    Sketcher.Constraint("Coincident", 47, 1, 48, 1),
    Sketcher.Constraint("Coincident", 48, 2, 49, 1),
    Sketcher.Constraint("Coincident", 49, 2, 35, 1),
    Sketcher.Constraint("Vertical", 11),
    Sketcher.Constraint("Vertical", 13),
    Sketcher.Constraint("Vertical", 17),
    Sketcher.Constraint("Vertical", 19),
    Sketcher.Constraint("Vertical", 22),
    Sketcher.Constraint("Vertical", 24),
    Sketcher.Constraint("Vertical", 26),
    Sketcher.Constraint("Vertical", 28),
    Sketcher.Constraint("Vertical", 30),
    Sketcher.Constraint("Vertical", 32),
    Sketcher.Constraint("Vertical", 34),
    Sketcher.Constraint("Vertical", 36),
    Sketcher.Constraint("Vertical", 41),
    Sketcher.Constraint("Vertical", 43),
    Sketcher.Constraint("Vertical", 49),
    Sketcher.Constraint("DistanceX", -1, 1, 10, 2, Q("223 mm")),
    Sketcher.Constraint("DistanceX", -1, 1, 23, 2, Q("223 mm")),
    Sketcher.Constraint("DistanceX", -1, 1, 33, 2, Q("227 mm")),
    Sketcher.Constraint("DistanceX", -1, 1, 35, 2, Q("223 mm")),
    Sketcher.Constraint("DistanceX", -1, 1, 40, 2, Q("223 mm")),
    Sketcher.Constraint("DistanceX", -1, 1, 42, 2, Q("227 mm")),
    Sketcher.Constraint("DistanceX", -1, 1, 48, 2, Q("227 mm")),
    Sketcher.Constraint("DistanceY", 42, 2, 48, 2, Q("2.5 mm")),
    Sketcher.Constraint("DistanceY", 13, 2, 13, 1, Q("1.019231 mm")),
    Sketcher.Constraint("DistanceY", 17, 1, 17, 2, Q("1.673878 mm")),
    Sketcher.Constraint("DistanceY", 19, 2, 19, 1, Q("1.100962 mm")),
    Sketcher.Constraint("DistanceY", 26, 1, 26, 2, Q("2.525641 mm")),
    Sketcher.Constraint("DistanceY", 43, 1, 43, 2, Q("0.46875 mm")),
    Sketcher.Constraint("DistanceY", 17, 2, 10, 2, Q("0.813301 mm")),
    Sketcher.Constraint("DistanceY", 28, 2, 26, 2, Q("2.563301 mm")),
    Sketcher.Constraint("DistanceY", 30, 2, 34, 2, Q("0.124199 mm")),
    Sketcher.Constraint("DistanceY", 42, 2, 40, 2, Q("1.4375 mm")),
    Sketcher.Constraint("Distance", 18, Q("1.46538 mm")),
    Sketcher.Constraint("Distance", 23, Q("4.083288 mm")),
    Sketcher.Constraint("Distance", 33, Q("0.467389 mm")),
    Sketcher.Constraint("Distance", 35, Q("4.083288 mm")),
    Sketcher.Constraint("Distance", 37, Q("2.473481 mm")),
    Sketcher.Constraint("Distance", 42, Q("4.083772 mm")),
    Sketcher.Constraint("Distance", 48, Q("1.647378 mm")),
    Sketcher.Constraint("DistanceY", 11, 2, 11, 1, Q("0.470353 mm")),
    Sketcher.Constraint("DistanceY", 24, 2, 24, 1, Q("2.996795 mm")),
    Sketcher.Constraint("DistanceY", 28, 2, 28, 1, Q("2.277244 mm")),
    Sketcher.Constraint("DistanceY", 30, 1, 30, 2, Q("2.286058 mm")),
    Sketcher.Constraint("DistanceY", 32, 2, 32, 1, Q("2.370192 mm")),
    Sketcher.Constraint("DistanceY", 34, 1, 34, 2, Q("2.820513 mm")),
    Sketcher.Constraint("DistanceY", 36, 2, 36, 1, Q("0.470353 mm")),
    Sketcher.Constraint("DistanceY", 23, 2, -1, 1, Q("0.25641 mm")),
    Sketcher.Constraint("DistanceX", -1, 1, 25, 2, Q("223.461538 mm")),
    Sketcher.Constraint("DistanceY", 27, 2, -1, 1, Q("1.107372 mm")),
    Sketcher.Constraint("DistanceX", -1, 1, 31, 2, Q("226.538462 mm")),
    Sketcher.Constraint("DistanceX", 13, 2, 27, 2, Q("0.205128 mm")),
    Sketcher.Constraint("DistanceX", 28, 2, 29, 2, Q("0.461538 mm")),
])
pocket1 = body.newObject("PartDesign::Pocket", "Pocket")
pocket1.Profile = sketch2
pocket1.Length = 0.2

doc.recompute()
